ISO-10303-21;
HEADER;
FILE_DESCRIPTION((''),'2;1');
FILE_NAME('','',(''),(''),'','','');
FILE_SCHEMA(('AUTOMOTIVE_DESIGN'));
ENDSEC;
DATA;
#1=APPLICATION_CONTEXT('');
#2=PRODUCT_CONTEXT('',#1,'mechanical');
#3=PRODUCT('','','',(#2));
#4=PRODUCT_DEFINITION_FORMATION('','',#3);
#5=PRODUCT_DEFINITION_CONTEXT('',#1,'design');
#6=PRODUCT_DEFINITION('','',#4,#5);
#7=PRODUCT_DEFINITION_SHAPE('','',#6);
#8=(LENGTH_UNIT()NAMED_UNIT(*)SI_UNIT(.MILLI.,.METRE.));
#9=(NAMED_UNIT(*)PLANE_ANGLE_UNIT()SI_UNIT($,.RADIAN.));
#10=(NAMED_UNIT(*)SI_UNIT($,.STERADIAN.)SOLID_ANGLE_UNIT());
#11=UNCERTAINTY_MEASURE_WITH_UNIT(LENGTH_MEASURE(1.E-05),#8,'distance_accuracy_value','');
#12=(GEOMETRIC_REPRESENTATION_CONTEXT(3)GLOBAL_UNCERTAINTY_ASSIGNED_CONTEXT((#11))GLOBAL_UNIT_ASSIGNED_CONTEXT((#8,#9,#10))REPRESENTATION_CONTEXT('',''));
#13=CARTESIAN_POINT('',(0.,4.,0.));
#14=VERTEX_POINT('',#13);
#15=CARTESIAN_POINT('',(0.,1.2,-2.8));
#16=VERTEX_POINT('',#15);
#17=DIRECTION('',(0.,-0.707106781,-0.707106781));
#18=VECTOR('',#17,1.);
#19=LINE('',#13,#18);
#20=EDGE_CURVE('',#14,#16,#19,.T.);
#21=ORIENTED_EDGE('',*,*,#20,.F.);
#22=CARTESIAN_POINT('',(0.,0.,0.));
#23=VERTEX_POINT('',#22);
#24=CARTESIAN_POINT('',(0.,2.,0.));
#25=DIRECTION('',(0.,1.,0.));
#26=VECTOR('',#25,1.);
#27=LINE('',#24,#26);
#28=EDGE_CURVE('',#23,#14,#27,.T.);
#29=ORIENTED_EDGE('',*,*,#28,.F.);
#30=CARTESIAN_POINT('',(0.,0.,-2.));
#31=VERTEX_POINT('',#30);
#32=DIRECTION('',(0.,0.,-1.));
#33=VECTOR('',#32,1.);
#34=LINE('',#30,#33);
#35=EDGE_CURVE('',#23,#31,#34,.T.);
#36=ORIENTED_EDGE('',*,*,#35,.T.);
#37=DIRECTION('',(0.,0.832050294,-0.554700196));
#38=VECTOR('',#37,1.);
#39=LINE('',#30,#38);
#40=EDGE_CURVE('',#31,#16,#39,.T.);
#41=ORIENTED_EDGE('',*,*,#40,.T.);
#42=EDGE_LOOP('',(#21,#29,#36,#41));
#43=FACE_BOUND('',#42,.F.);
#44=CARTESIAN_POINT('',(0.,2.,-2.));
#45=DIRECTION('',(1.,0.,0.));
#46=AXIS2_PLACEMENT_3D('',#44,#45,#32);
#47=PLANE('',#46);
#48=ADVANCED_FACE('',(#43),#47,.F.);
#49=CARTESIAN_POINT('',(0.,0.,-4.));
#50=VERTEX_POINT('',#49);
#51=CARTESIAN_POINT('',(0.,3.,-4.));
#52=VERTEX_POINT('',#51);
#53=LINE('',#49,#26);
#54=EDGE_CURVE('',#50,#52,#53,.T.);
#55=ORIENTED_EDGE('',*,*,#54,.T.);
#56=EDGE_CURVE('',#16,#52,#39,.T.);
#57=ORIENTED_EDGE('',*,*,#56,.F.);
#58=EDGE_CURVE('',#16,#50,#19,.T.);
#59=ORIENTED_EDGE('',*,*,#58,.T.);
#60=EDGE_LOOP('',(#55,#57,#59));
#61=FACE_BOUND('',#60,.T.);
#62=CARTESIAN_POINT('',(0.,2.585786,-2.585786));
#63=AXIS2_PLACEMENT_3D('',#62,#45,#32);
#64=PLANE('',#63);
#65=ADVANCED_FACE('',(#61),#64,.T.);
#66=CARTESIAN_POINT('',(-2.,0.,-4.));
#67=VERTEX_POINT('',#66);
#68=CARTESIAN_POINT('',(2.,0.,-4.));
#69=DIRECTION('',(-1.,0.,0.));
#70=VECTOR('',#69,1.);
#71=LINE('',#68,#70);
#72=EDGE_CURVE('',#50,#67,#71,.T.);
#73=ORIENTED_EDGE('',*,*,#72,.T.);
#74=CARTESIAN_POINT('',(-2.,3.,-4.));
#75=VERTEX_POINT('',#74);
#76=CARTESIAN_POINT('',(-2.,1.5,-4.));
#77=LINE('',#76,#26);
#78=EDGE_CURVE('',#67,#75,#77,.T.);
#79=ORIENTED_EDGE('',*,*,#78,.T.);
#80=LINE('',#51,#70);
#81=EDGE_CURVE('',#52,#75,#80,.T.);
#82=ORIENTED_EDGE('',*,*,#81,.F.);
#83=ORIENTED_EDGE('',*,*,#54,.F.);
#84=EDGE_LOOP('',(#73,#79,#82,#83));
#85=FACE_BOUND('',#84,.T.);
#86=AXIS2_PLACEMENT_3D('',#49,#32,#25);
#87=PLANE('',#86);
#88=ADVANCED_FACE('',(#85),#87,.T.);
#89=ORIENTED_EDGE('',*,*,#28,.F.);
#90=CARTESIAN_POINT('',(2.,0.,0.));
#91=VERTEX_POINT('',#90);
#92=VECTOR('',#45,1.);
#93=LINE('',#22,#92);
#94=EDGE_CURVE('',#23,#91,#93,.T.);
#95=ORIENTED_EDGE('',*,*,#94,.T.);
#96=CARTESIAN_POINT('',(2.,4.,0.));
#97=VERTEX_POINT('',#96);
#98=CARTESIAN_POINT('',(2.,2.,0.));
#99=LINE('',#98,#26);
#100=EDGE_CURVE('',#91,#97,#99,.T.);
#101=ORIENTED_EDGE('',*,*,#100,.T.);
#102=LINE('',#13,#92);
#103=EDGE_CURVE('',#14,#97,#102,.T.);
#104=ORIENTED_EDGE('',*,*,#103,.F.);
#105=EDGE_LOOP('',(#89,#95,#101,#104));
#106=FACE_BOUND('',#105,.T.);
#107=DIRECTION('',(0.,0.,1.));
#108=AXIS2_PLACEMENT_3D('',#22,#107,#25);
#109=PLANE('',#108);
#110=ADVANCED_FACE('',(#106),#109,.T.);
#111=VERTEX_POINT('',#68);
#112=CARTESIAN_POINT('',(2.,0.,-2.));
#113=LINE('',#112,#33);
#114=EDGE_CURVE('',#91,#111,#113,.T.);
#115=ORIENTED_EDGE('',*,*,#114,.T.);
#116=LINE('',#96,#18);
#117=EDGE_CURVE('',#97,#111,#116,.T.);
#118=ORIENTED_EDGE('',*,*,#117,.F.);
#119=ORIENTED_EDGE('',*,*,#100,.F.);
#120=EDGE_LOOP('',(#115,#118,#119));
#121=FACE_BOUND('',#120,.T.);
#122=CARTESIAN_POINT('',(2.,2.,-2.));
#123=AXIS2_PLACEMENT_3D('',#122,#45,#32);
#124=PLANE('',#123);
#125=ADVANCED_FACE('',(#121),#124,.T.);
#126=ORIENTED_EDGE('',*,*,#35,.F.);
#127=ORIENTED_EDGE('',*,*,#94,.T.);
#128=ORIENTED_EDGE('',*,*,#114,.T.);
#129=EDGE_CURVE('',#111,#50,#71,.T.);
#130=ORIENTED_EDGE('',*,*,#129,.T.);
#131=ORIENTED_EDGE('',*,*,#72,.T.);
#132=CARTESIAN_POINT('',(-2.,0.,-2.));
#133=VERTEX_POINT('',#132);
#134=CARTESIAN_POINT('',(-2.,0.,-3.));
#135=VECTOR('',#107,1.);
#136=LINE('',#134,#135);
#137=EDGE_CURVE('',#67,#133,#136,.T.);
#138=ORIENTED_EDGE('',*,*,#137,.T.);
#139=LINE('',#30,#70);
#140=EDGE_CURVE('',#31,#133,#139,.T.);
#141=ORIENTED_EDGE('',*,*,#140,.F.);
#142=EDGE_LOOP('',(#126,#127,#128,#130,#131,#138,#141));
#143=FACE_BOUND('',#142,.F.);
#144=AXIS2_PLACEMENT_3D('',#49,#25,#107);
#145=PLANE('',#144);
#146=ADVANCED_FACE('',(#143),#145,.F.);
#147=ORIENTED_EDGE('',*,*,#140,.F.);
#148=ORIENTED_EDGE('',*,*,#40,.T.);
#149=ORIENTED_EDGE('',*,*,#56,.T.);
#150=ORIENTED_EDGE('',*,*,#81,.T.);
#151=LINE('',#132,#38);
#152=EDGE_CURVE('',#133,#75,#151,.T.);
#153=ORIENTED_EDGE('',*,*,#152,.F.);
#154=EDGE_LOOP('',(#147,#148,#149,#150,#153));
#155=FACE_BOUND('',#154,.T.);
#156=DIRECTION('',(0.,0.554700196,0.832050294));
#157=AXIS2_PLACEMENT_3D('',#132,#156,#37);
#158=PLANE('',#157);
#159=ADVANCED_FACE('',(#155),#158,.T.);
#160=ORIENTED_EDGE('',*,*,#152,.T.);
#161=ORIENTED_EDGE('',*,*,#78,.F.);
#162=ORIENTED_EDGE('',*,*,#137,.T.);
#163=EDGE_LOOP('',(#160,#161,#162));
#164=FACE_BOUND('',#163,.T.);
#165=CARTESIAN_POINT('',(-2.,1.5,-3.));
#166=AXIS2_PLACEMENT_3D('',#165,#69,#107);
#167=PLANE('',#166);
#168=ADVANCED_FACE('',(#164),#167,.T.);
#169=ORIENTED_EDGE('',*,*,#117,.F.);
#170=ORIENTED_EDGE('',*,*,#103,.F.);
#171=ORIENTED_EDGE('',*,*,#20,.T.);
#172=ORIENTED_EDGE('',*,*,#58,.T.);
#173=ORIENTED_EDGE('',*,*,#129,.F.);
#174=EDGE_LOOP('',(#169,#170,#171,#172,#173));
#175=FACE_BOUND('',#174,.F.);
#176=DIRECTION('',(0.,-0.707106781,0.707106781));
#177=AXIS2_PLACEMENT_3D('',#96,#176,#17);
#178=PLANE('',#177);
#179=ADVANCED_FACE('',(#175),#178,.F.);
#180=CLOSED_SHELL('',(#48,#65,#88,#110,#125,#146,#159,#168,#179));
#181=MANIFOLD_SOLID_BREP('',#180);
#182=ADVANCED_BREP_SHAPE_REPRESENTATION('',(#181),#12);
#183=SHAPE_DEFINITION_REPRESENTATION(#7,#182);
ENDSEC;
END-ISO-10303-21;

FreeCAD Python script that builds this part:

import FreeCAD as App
import Part
import Sketcher
from FreeCAD import Vector

doc = App.newDocument("Part")
body = doc.addObject("PartDesign::Body", "Body")

# Sketch on YZ plane
sketch1 = body.newObject("Sketcher::SketchObject", "Sketch")
sketch1.AttachmentSupport = (doc.getObject("YZ_Plane"), [""])
sketch1.MapMode = "FlatFace"
sketch1.addGeometry([
    Part.LineSegment(Vector(4, 0, 0), Vector(0, 0, 0)),
    Part.LineSegment(Vector(0, 0, 0), Vector(0, -4, 0)),
    Part.LineSegment(Vector(0, -4, 0), Vector(4, -4, 0)),
    Part.LineSegment(Vector(4, -4, 0), Vector(4, 0, 0)),
], False)
sketch1.addConstraint([
    Sketcher.Constraint("Coincident", 0, 2, 1, 1),
    Sketcher.Constraint("Coincident", 1, 2, 2, 1),
    Sketcher.Constraint("Coincident", 2, 2, 3, 1),
    Sketcher.Constraint("Coincident", 3, 2, 0, 1),
    Sketcher.Constraint("Horizontal", 0),
    Sketcher.Constraint("Vertical", 1),
    Sketcher.Constraint("Horizontal", 2),
    Sketcher.Constraint("Vertical", 3),
    Sketcher.Constraint("Coincident", 0, 2, -1, 1),
    Sketcher.Constraint("Equal", 2, 1),
    Sketcher.Constraint("DistanceX", 0, 2, 0, 1, 4.0),
])
pad1 = body.newObject("PartDesign::Pad", "Pad")
pad1.Profile = sketch1
pad1.Length = 2

# Sketch on YZ plane
sketch2 = body.newObject("Sketcher::SketchObject", "Sketch001")
sketch2.AttachmentSupport = (doc.getObject("YZ_Plane"), [""])
sketch2.MapMode = "FlatFace"
sketch2.addGeometry([
    Part.LineSegment(Vector(3, -4, 0), Vector(0, -4, 0)),
    Part.LineSegment(Vector(0, -4, 0), Vector(0, -2, 0)),
    Part.LineSegment(Vector(0, -2, 0), Vector(3, -2, 0)),
    Part.LineSegment(Vector(3, -2, 0), Vector(3, -4, 0)),
], False)
sketch2.addConstraint([
    Sketcher.Constraint("Coincident", 0, 2, 1, 1),
    Sketcher.Constraint("Coincident", 1, 2, 2, 1),
    Sketcher.Constraint("Coincident", 2, 2, 3, 1),
    Sketcher.Constraint("Coincident", 3, 2, 0, 1),
    Sketcher.Constraint("Horizontal", 0),
    Sketcher.Constraint("Vertical", 1),
    Sketcher.Constraint("Horizontal", 2),
    Sketcher.Constraint("Vertical", 3),
    Sketcher.Constraint("PointOnObject", 0, 2, -2),
    Sketcher.Constraint("DistanceX", 0, 2, 0, 1, 3.0),
    Sketcher.Constraint("DistanceY", 1, 1, 1, 2, 2.0),
    Sketcher.Constraint("DistanceY", 0, 2, -1, 1, 4.0),
])
pad2 = body.newObject("PartDesign::Pad", "Pad001")
pad2.Profile = sketch2
pad2.Length = 2
pad2.Reversed = True

# Sketch on YZ plane
sketch3 = body.newObject("Sketcher::SketchObject", "Sketch002")
sketch3.AttachmentSupport = (doc.getObject("YZ_Plane"), [""])
sketch3.MapMode = "FlatFace"
sketch3.AttachmentOffset = App.Placement(Vector(0, 0, 2), App.Rotation())
sketch3.addGeometry([
    Part.LineSegment(Vector(4, 0, 0), Vector(0, -4, 0)),
    Part.LineSegment(Vector(0, -4, 0), Vector(4, -4, 0)),
    Part.LineSegment(Vector(4, -4, 0), Vector(4, 0, 0)),
], False)
sketch3.addConstraint([
    Sketcher.Constraint("Coincident", 0, 2, 1, 1),
    Sketcher.Constraint("Coincident", 1, 2, 2, 1),
    Sketcher.Constraint("Coincident", 2, 2, 0, 1),
    Sketcher.Constraint("Horizontal", 1),
    Sketcher.Constraint("Vertical", 2),
    Sketcher.Constraint("PointOnObject", 0, 2, -2),
    Sketcher.Constraint("PointOnObject", 2, 2, -1),
    Sketcher.Constraint("Equal", 1, 2),
    Sketcher.Constraint("DistanceX", 1, 1, 1, 2, 4.0),
])
pocket1 = body.newObject("PartDesign::Pocket", "Pocket")
pocket1.Profile = sketch3
pocket1.Length = 2

# Sketch on YZ plane
sketch4 = body.newObject("Sketcher::SketchObject", "Sketch003")
sketch4.AttachmentSupport = (doc.getObject("YZ_Plane"), [""])
sketch4.MapMode = "FlatFace"
sketch4.AttachmentOffset = App.Placement(Vector(0, 0, -2), App.Rotation())
sketch4.addGeometry([
    Part.LineSegment(Vector(3, -4, 0), Vector(0, -2, 0)),
    Part.LineSegment(Vector(0, -2, 0), Vector(3, -2, 0)),
    Part.LineSegment(Vector(3, -2, 0), Vector(3, -4, 0)),
], False)
sketch4.addConstraint([
    Sketcher.Constraint("Coincident", 0, 2, 1, 1),
    Sketcher.Constraint("Coincident", 1, 2, 2, 1),
    Sketcher.Constraint("Coincident", 2, 2, 0, 1),
    Sketcher.Constraint("Horizontal", 1),
    Sketcher.Constraint("Vertical", 2),
    Sketcher.Constraint("PointOnObject", 0, 2, -2),
    Sketcher.Constraint("DistanceX", 1, 1, 1, 2, 3.0),
    Sketcher.Constraint("DistanceY", 2, 2, 2, 1, 2.0),
    Sketcher.Constraint("DistanceY", 0, 2, -1, 1, 2.0),
])
pocket2 = body.newObject("PartDesign::Pocket", "Pocket001")
pocket2.Profile = sketch4
pocket2.Length = 2
pocket2.Reversed = True

doc.recompute()
